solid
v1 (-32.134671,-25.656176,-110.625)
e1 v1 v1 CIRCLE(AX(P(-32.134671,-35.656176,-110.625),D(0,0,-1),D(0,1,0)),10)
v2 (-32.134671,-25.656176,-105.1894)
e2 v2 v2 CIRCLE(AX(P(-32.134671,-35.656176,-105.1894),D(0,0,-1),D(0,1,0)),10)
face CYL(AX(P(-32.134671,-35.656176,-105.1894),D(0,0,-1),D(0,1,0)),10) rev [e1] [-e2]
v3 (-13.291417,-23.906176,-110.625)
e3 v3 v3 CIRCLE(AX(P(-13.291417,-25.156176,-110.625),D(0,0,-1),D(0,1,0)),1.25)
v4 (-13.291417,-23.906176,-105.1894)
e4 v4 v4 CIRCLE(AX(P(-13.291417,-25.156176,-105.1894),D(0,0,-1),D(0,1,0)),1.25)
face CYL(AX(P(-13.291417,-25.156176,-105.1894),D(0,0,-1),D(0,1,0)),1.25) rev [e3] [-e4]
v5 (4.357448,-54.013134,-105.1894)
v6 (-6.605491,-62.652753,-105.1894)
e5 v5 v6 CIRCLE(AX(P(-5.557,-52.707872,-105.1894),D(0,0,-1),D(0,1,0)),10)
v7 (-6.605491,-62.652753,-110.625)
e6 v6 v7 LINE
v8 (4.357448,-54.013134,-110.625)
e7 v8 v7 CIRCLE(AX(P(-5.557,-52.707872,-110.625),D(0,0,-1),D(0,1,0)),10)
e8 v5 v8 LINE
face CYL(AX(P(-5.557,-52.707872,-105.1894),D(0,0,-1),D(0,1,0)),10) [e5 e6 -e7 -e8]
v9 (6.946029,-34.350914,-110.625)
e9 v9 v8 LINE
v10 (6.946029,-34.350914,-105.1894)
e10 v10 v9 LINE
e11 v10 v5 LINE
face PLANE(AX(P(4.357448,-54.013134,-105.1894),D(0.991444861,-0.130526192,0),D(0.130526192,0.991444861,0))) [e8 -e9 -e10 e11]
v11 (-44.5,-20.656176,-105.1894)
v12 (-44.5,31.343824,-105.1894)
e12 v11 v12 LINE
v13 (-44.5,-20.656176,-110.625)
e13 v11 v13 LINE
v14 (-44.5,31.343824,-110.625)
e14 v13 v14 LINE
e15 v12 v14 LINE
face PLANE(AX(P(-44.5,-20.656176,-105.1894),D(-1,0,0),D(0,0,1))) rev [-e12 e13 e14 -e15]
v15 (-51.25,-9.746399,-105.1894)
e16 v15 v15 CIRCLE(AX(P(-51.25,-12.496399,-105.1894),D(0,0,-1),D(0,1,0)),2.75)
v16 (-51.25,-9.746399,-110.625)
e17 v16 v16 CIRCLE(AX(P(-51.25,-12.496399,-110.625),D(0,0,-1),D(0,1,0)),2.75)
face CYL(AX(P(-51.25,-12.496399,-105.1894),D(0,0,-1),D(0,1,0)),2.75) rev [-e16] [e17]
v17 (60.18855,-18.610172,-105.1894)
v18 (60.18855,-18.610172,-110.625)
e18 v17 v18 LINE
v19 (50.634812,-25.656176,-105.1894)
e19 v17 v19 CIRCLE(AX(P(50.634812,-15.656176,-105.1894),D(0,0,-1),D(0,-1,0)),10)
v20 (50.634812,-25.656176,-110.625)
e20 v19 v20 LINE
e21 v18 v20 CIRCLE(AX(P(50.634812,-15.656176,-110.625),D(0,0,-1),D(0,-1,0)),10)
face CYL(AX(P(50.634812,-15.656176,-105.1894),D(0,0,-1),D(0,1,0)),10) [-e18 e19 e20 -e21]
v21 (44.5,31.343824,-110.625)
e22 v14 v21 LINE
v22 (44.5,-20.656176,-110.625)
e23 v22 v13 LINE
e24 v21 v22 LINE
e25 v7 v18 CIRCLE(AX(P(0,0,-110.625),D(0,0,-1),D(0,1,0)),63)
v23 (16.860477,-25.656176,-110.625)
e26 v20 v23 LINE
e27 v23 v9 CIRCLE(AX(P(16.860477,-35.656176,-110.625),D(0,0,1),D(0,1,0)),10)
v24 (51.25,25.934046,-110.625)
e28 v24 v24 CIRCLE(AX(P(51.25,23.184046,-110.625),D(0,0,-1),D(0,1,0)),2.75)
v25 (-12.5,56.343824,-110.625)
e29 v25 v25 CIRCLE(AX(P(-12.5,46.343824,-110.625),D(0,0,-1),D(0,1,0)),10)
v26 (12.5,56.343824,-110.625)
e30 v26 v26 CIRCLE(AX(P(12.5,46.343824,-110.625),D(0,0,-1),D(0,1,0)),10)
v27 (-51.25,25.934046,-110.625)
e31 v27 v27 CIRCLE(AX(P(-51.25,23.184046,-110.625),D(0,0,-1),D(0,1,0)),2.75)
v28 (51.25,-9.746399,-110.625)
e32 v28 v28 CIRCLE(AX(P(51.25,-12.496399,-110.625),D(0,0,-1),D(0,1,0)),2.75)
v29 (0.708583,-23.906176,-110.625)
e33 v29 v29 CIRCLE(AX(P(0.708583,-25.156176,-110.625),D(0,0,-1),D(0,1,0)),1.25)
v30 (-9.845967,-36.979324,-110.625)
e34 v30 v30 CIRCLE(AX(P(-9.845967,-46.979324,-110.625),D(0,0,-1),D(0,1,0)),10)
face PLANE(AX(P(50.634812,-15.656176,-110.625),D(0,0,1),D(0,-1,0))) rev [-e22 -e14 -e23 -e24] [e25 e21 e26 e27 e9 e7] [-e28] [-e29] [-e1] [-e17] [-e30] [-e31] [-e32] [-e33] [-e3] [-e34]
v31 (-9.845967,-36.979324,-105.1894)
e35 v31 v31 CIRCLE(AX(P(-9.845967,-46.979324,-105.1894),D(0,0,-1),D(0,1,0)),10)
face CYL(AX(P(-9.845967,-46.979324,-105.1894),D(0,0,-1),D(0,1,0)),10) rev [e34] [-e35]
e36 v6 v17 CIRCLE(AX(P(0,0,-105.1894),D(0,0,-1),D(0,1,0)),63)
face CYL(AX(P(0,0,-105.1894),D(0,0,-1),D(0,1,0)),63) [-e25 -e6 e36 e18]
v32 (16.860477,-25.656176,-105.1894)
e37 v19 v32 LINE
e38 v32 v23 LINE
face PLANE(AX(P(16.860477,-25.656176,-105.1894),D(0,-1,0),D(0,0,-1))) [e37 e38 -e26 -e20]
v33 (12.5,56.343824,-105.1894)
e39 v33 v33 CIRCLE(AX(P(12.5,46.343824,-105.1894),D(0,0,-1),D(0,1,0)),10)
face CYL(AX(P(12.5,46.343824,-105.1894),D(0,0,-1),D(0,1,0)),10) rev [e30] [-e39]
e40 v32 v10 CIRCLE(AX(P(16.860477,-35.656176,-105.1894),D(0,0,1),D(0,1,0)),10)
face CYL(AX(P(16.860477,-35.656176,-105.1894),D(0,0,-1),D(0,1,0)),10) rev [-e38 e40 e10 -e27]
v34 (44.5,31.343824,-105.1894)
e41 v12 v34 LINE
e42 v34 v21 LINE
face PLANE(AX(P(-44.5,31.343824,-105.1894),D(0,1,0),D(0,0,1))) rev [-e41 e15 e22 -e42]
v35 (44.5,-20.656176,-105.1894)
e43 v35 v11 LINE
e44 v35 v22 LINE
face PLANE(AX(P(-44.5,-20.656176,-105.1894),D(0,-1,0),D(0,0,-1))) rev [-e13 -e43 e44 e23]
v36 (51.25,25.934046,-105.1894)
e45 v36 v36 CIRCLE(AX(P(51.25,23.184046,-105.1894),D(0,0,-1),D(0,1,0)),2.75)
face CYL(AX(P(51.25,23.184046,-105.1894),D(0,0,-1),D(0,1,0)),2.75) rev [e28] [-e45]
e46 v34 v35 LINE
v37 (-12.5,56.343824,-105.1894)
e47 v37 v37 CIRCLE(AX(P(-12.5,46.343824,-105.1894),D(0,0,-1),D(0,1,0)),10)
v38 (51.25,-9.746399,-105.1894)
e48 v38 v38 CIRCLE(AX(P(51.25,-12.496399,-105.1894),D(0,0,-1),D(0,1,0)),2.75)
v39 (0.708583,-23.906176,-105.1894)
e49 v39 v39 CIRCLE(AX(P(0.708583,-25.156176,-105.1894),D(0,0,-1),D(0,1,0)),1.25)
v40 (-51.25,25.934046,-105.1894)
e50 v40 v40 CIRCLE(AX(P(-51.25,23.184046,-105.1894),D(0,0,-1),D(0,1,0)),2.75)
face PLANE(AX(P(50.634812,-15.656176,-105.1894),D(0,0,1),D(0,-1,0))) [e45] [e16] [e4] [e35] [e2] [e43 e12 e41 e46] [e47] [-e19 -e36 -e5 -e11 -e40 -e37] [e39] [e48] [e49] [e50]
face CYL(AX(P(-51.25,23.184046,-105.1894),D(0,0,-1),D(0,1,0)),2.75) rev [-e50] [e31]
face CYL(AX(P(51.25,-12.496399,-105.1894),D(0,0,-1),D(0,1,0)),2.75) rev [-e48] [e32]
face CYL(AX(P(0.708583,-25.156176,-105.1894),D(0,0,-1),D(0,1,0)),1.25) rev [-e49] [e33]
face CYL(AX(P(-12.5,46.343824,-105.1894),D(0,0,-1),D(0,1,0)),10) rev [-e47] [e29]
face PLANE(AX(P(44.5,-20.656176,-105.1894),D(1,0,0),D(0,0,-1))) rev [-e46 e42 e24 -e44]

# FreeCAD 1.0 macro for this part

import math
import FreeCAD as App
import Part
import Sketcher
Q = App.Units.Quantity

doc = App.newDocument("Part")
body = doc.addObject("PartDesign::Body", "Body")

# Sketch on XY plane
sketch1 = doc.addObject("Sketcher::SketchObject", "Sketch")
body.addObject(sketch1)
sketch1.AttachmentSupport = (doc.XY_Plane, [""])
sketch1.MapMode = "FlatFace"
sketch1.AttachmentOffset = App.Placement(App.Vector(0, 0, -110.625), App.Rotation())
sketch1.addGeometry(Part.LineSegment(App.Vector(6.9, -34.4, 0), App.Vector(4.4, -54, 0)), False)
sketch1.addGeometry(Part.ArcOfCircle(Part.Circle(App.Vector(-5.6, -52.7, 0), App.Vector(0, 0, 1), 10), math.radians(-96), math.radians(-8)), False)
sketch1.addGeometry(Part.ArcOfCircle(Part.Circle(App.Vector(0, 0, 0), App.Vector(0, 0, 1), 63), math.radians(-17), math.radians(264)), False)
sketch1.addGeometry(Part.ArcOfCircle(Part.Circle(App.Vector(50.6, -15.7, 0), App.Vector(0, 0, 1), 10), math.radians(-90), math.radians(-17)), False)
sketch1.addGeometry(Part.LineSegment(App.Vector(50.6, -25.7, 0), App.Vector(16.9, -25.7, 0)), False)
sketch1.addGeometry(Part.ArcOfCircle(Part.Circle(App.Vector(16.9, -35.7, 0), App.Vector(0, 0, 1), 10), math.radians(90), math.radians(172)), False)
sketch1.addGeometry(Part.Circle(App.Vector(-32.1, -35.7, 0), App.Vector(0, 0, 1), 10), False)
sketch1.addGeometry(Part.Circle(App.Vector(-9.8, -47, 0), App.Vector(0, 0, 1), 10), False)
sketch1.addGeometry(Part.Circle(App.Vector(-51.2, -12.5, 0), App.Vector(0, 0, 1), 2.8), False)
sketch1.addGeometry(Part.Circle(App.Vector(-13.3, -25.2, 0), App.Vector(0, 0, 1), 1.2), False)
sketch1.addGeometry(Part.Circle(App.Vector(0.7, -25.2, 0), App.Vector(0, 0, 1), 1.2), False)
sketch1.addGeometry(Part.Circle(App.Vector(51.2, -12.5, 0), App.Vector(0, 0, 1), 2.8), False)
sketch1.addGeometry(Part.Circle(App.Vector(-51.2, 23.2, 0), App.Vector(0, 0, 1), 2.8), False)
sketch1.addGeometry(Part.Circle(App.Vector(-12.5, 46.3, 0), App.Vector(0, 0, 1), 10), False)
sketch1.addGeometry(Part.LineSegment(App.Vector(44.5, -20.7, 0), App.Vector(44.5, 31.3, 0)), False)
sketch1.addGeometry(Part.LineSegment(App.Vector(44.5, 31.3, 0), App.Vector(-44.5, 31.3, 0)), False)
sketch1.addGeometry(Part.LineSegment(App.Vector(-44.5, 31.3, 0), App.Vector(-44.5, -20.7, 0)), False)
sketch1.addGeometry(Part.LineSegment(App.Vector(-44.5, -20.7, 0), App.Vector(44.5, -20.7, 0)), False)
sketch1.addGeometry(Part.Circle(App.Vector(51.2, 23.2, 0), App.Vector(0, 0, 1), 2.8), False)
sketch1.addGeometry(Part.Circle(App.Vector(12.5, 46.3, 0), App.Vector(0, 0, 1), 10), False)
sketch1.addConstraint(Sketcher.Constraint("Tangent", 0, 2, 1, 2))
sketch1.addConstraint(Sketcher.Constraint("Tangent", 1, 1, 2, 2))
sketch1.addConstraint(Sketcher.Constraint("Tangent", 2, 1, 3, 2))
sketch1.addConstraint(Sketcher.Constraint("Tangent", 3, 1, 4, 1))
sketch1.addConstraint(Sketcher.Constraint("Tangent", 4, 2, 5, 1))
sketch1.addConstraint(Sketcher.Constraint("Tangent", 5, 2, 0, 1))
sketch1.addConstraint(Sketcher.Constraint("Coincident", 14, 2, 15, 1))
sketch1.addConstraint(Sketcher.Constraint("Coincident", 15, 2, 16, 1))
sketch1.addConstraint(Sketcher.Constraint("Coincident", 16, 2, 17, 1))
sketch1.addConstraint(Sketcher.Constraint("Coincident", 17, 2, 14, 1))
sketch1.addConstraint(Sketcher.Constraint("Horizontal", 4))
sketch1.addConstraint(Sketcher.Constraint("Vertical", 14))
sketch1.addConstraint(Sketcher.Constraint("Horizontal", 15))
sketch1.addConstraint(Sketcher.Constraint("Vertical", 16))
sketch1.addConstraint(Sketcher.Constraint("Horizontal", 17))
sketch1.addConstraint(Sketcher.Constraint("Coincident", 2, 3, -1, 1))
sketch1.addConstraint(Sketcher.Constraint("Equal", 1, 3))
sketch1.addConstraint(Sketcher.Constraint("Equal", 3, 5))
sketch1.addConstraint(Sketcher.Constraint("Equal", 5, 6))
sketch1.addConstraint(Sketcher.Constraint("Equal", 6, 7))
sketch1.addConstraint(Sketcher.Constraint("Equal", 9, 10))
sketch1.addConstraint(Sketcher.Constraint("Equal", 8, 11))
sketch1.addConstraint(Sketcher.Constraint("Equal", 11, 12))
sketch1.addConstraint(Sketcher.Constraint("Equal", 7, 13))
sketch1.addConstraint(Sketcher.Constraint("Equal", 12, 18))
sketch1.addConstraint(Sketcher.Constraint("Equal", 13, 19))
sketch1.addConstraint(Sketcher.Constraint("Symmetric", 8, 3, 11, 3, -2))
sketch1.addConstraint(Sketcher.Constraint("Symmetric", 12, 3, 18, 3, -2))
sketch1.addConstraint(Sketcher.Constraint("Symmetric", 13, 3, 19, 3, -2))
sketch1.addConstraint(Sketcher.Constraint("Horizontal", 5, 3, 6, 3))
sketch1.addConstraint(Sketcher.Constraint("Horizontal", 9, 3, 10, 3))
sketch1.addConstraint(Sketcher.Constraint("Vertical", 8, 3, 12, 3))
sketch1.addConstraint(Sketcher.Constraint("Diameter", 6, Q("20 mm")))
sketch1.addConstraint(Sketcher.Constraint("Radius", 2, Q("63 mm")))
sketch1.addConstraint(Sketcher.Constraint("Diameter", 8, Q("5.5 mm")))
sketch1.addConstraint(Sketcher.Constraint("Diameter", 9, Q("2.5 mm")))
sketch1.addConstraint(Sketcher.Constraint("DistanceX", 15, 2, 15, 1, Q("89 mm")))
sketch1.addConstraint(Sketcher.Constraint("DistanceY", 14, 1, 14, 2, Q("52 mm")))
sketch1.addConstraint(Sketcher.Constraint("Angle", 0, Q("-97.5 deg")))
sketch1.addConstraint(Sketcher.Constraint("DistanceX", 9, 3, 10, 3, Q("14 mm")))
sketch1.addConstraint(Sketcher.Constraint("DistanceX", 13, 3, 19, 3, Q("25 mm")))
sketch1.addConstraint(Sketcher.Constraint("DistanceX", 19, 3, 14, 2, Q("32 mm")))
sketch1.addConstraint(Sketcher.Constraint("DistanceY", 14, 2, 19, 3, Q("15 mm")))
sketch1.addConstraint(Sketcher.Constraint("DistanceY", 3, 3, 14, 2, Q("47 mm")))
sketch1.addConstraint(Sketcher.Constraint("DistanceY", 6, 3, 9, 3, Q("10.5 mm")))
sketch1.addConstraint(Sketcher.Constraint("DistanceX", 8, 3, -1, 1, Q("51.25 mm")))
sketch1.addConstraint(Sketcher.Constraint("DistanceX", 1, 3, -1, 1, Q("5.557 mm")))
sketch1.addConstraint(Sketcher.Constraint("DistanceY", 8, 3, -1, 1, Q("12.496399 mm")))
sketch1.addConstraint(Sketcher.Constraint("DistanceX", 4, 2, 4, 1, Q("33.774334 mm")))
sketch1.addConstraint(Sketcher.Constraint("DistanceX", 6, 3, -1, 1, Q("32.134671 mm")))
sketch1.addConstraint(Sketcher.Constraint("DistanceY", 7, 3, 6, 3, Q("11.323148 mm")))
sketch1.addConstraint(Sketcher.Constraint("DistanceX", 7, 3, 3, 3, Q("60.480779 mm")))
sketch1.addConstraint(Sketcher.Constraint("DistanceX", 9, 3, 7, 3, Q("3.445449 mm")))
sketch1.addConstraint(Sketcher.Constraint("DistanceY", 2, 1, 18, 3, Q("41.794218 mm")))
pad1 = doc.addObject("PartDesign::Pad", "Pad")
body.addObject(pad1)
pad1.Profile = sketch1
pad1.Length = 5.4356

doc.recompute()
